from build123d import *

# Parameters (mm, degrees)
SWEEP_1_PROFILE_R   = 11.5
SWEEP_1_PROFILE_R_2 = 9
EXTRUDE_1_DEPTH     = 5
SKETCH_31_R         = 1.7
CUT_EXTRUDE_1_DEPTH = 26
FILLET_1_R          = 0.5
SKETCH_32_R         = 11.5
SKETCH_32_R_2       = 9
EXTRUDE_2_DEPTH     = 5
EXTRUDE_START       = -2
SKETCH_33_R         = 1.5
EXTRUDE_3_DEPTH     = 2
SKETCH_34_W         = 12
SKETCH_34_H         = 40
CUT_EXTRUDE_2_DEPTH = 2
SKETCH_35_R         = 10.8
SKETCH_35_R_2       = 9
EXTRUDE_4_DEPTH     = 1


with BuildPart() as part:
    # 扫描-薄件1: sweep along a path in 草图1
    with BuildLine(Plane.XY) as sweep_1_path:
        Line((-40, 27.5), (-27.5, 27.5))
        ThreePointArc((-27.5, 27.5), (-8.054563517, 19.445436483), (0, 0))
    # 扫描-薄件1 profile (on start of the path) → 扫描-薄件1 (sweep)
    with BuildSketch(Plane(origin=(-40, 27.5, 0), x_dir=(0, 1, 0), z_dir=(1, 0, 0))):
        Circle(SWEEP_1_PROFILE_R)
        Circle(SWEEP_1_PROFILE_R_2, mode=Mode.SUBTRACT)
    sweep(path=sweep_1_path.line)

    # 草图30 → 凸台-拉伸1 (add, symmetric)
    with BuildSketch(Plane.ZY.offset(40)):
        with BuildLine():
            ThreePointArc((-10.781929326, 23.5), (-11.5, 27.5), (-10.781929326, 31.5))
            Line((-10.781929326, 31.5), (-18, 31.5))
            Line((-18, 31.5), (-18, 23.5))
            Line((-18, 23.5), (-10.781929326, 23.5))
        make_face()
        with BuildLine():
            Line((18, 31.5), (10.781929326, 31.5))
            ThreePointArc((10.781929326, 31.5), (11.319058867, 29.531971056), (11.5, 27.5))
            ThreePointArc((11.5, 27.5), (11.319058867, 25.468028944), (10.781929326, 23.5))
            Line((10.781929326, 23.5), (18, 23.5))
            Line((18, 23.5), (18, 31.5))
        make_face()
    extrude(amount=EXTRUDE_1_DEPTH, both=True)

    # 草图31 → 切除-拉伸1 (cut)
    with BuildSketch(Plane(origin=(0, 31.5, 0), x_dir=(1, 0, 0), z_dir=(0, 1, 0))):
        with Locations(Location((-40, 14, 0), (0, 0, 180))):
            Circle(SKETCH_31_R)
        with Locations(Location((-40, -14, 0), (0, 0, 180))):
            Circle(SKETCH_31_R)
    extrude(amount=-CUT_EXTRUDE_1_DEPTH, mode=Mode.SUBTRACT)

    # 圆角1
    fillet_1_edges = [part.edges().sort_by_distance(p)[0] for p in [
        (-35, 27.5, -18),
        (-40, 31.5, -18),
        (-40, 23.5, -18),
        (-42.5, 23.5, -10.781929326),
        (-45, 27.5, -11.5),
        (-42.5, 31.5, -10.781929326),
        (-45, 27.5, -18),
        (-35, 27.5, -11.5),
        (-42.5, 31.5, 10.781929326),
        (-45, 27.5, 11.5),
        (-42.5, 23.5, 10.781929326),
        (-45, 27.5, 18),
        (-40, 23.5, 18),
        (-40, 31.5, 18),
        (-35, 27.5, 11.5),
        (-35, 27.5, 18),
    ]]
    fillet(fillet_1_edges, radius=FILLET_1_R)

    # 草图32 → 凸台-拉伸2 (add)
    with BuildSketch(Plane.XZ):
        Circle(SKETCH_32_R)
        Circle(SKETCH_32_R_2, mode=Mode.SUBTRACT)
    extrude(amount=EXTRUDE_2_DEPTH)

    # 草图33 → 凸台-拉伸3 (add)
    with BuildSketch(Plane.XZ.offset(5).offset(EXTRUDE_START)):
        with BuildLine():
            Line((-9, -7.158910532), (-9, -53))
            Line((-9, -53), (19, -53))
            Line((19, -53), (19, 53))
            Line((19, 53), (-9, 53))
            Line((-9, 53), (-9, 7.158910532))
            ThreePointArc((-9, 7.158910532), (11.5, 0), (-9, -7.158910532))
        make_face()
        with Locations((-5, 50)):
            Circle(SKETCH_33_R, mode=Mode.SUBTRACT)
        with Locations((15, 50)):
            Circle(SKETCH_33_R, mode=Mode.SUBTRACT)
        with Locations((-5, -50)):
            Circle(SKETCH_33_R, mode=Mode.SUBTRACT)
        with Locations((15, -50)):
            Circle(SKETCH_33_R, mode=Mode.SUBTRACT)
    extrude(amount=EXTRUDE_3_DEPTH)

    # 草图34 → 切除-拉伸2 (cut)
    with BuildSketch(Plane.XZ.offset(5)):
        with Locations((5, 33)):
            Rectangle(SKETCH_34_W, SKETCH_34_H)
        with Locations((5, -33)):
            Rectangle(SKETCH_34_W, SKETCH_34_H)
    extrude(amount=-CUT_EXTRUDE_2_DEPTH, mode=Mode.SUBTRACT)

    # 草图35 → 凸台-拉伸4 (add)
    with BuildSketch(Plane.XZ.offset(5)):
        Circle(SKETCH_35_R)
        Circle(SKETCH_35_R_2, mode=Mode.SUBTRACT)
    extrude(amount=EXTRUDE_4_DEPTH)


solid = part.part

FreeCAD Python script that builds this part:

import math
import FreeCAD as App
import Part
import Sketcher
from FreeCAD import Vector


def edges_at(feature, points):
    """Names of the edges that pass closest to the given points."""
    edges = feature.Shape.Edges
    near = lambda p: min(range(len(edges)), key=lambda i: edges[i].distToShape(Part.Vertex(*p))[0])
    return sorted({f"Edge{near(p) + 1}" for p in points})

doc = App.newDocument("Part")
params = doc.addObject("Spreadsheet::Sheet", "Params")
for row, (alias, value) in enumerate([
    ("sketch1_diameter", "23 mm"),
    ("sketch1_diameter2", "18 mm"),
    ("sketch2_radius", "27.5 mm"),
    ("sketch2_width", "12.5 mm"),
    ("sketch3_radius", "11.5 mm"),
    ("sketch3_width", "8 mm"),
    ("pad1_length", "10 mm"),
    ("sketch4_diameter", "3.4 mm"),
    ("pocket1_length", "26 mm"),
    ("fillet_radius", "0.5 mm"),
    ("sketch5_diameter", "23 mm"),
    ("sketch5_diameter2", "18 mm"),
    ("pad2_length", "5 mm"),
    ("sketch6_diameter", "3 mm"),
    ("sketch6_radius", "11.5 mm"),
    ("sketch6_width", "28 mm"),
    ("sketch6_height", "106 mm"),
    ("pad3_length", "2 mm"),
    ("sketch7_width", "12 mm"),
    ("sketch7_height", "40 mm"),
    ("pocket2_length", "2 mm"),
    ("sketch8_diameter", "18 mm"),
    ("sketch8_diameter2", "21.6 mm"),
    ("pad4_length", "1 mm"),
], start=1):
    params.set(f"A{row}", alias)
    params.set(f"B{row}", "=" + value)
    params.setAlias(f"B{row}", alias)

body = doc.addObject("PartDesign::Body", "Body")

sketch1 = body.newObject("Sketcher::SketchObject", "Sketch")
sketch1.AttachmentSupport = (doc.getObject("YZ_Plane"), [""])
sketch1.MapMode = "FlatFace"
sketch1.AttachmentOffset = App.Placement(Vector(0, 0, -40), App.Rotation())
sketch1.addGeometry(Part.Circle(Vector(27.5, 0, 0), Vector(0, 0, 1), 11.5), False)
sketch1.addGeometry(Part.Circle(Vector(27.5, 0, 0), Vector(0, 0, 1), 9), False)
sketch1.addConstraint(Sketcher.Constraint("Coincident", 1, 3, 0, 3))
sketch1.addConstraint(Sketcher.Constraint("PointOnObject", 0, 3, -1))
sketch1.addConstraint(Sketcher.Constraint("Diameter", 0, 23.0))
sketch1.addConstraint(Sketcher.Constraint("Diameter", 1, 18.0))
sketch1.addConstraint(Sketcher.Constraint("DistanceX", -1, 1, 0, 3, 27.5))
sketch1.setExpression("Constraints[2]", "Params.sketch1_diameter")
sketch1.setExpression("Constraints[3]", "Params.sketch1_diameter2")

sketch2 = body.newObject("Sketcher::SketchObject", "Sketch001")
sketch2.AttachmentSupport = (doc.getObject("XY_Plane"), [""])
sketch2.MapMode = "FlatFace"
sketch2.addGeometry(Part.LineSegment(Vector(-40, 27.5, 0), Vector(-27.5, 27.5, 0)), False)
sketch2.addGeometry(Part.ArcOfCircle(Part.Circle(Vector(-27.5, 0, 0), Vector(0, 0, 1), 27.5), math.radians(0), math.radians(90)), False)
sketch2.addConstraint(Sketcher.Constraint("Tangent", 0, 2, 1, 2))
sketch2.addConstraint(Sketcher.Constraint("Horizontal", 0))
sketch2.addConstraint(Sketcher.Constraint("Coincident", 1, 1, -1, 1))
sketch2.addConstraint(Sketcher.Constraint("PointOnObject", 1, 3, -1))
sketch2.addConstraint(Sketcher.Constraint("Radius", 1, 27.5))
sketch2.addConstraint(Sketcher.Constraint("DistanceX", 0, 1, 0, 2, 12.5))
sketch2.setExpression("Constraints[4]", "Params.sketch2_radius")
sketch2.setExpression("Constraints[5]", "Params.sketch2_width")
doc.recompute()

additivepipe = body.newObject("PartDesign::AdditivePipe", "AdditivePipe")
additivepipe.Profile = sketch1
additivepipe.Spine = (sketch2, ["Edge1", "Edge2"])

sketch3 = body.newObject("Sketcher::SketchObject", "Sketch002")
sketch3.AttachmentSupport = (doc.getObject("YZ_Plane"), [""])
sketch3.MapMode = "FlatFace"
sketch3.AttachmentOffset = App.Placement(Vector(0, 0, -40), App.Rotation())
sketch3.addGeometry(Part.ArcOfCircle(Part.Circle(Vector(27.5, 0, 0), Vector(0, 0, 1), 11.5), math.radians(-110.354406), math.radians(-69.645594)), False)
sketch3.addGeometry(Part.LineSegment(Vector(31.5, -10.781929, 0), Vector(31.5, -18, 0)), False)
sketch3.addGeometry(Part.LineSegment(Vector(31.5, -18, 0), Vector(23.5, -18, 0)), False)
sketch3.addGeometry(Part.LineSegment(Vector(23.5, -18, 0), Vector(23.5, -10.781929, 0)), False)
sketch3.addGeometry(Part.LineSegment(Vector(31.5, 18, 0), Vector(31.5, 10.781929, 0)), False)
sketch3.addGeometry(Part.ArcOfCircle(Part.Circle(Vector(27.5, 0, 0), Vector(0, 0, 1), 11.5), math.radians(69.645594), math.radians(90)), False)
sketch3.addGeometry(Part.ArcOfCircle(Part.Circle(Vector(27.5, 0, 0), Vector(0, 0, 1), 11.5), math.radians(90), math.radians(110.354406)), False)
sketch3.addGeometry(Part.LineSegment(Vector(23.5, 10.781929, 0), Vector(23.5, 18, 0)), False)
sketch3.addGeometry(Part.LineSegment(Vector(23.5, 18, 0), Vector(31.5, 18, 0)), False)
sketch3.addConstraint(Sketcher.Constraint("Coincident", 0, 2, 1, 1))
sketch3.addConstraint(Sketcher.Constraint("Coincident", 1, 2, 2, 1))
sketch3.addConstraint(Sketcher.Constraint("Coincident", 2, 2, 3, 1))
sketch3.addConstraint(Sketcher.Constraint("Coincident", 3, 2, 0, 1))
sketch3.addConstraint(Sketcher.Constraint("Coincident", 4, 2, 5, 1))
sketch3.addConstraint(Sketcher.Constraint("Tangent", 5, 2, 6, 1))
sketch3.addConstraint(Sketcher.Constraint("Coincident", 6, 2, 7, 1))
sketch3.addConstraint(Sketcher.Constraint("Coincident", 7, 2, 8, 1))
sketch3.addConstraint(Sketcher.Constraint("Coincident", 8, 2, 4, 1))
sketch3.addConstraint(Sketcher.Constraint("Vertical", 1))
sketch3.addConstraint(Sketcher.Constraint("Horizontal", 2))
sketch3.addConstraint(Sketcher.Constraint("Vertical", 3))
sketch3.addConstraint(Sketcher.Constraint("Vertical", 4))
sketch3.addConstraint(Sketcher.Constraint("Vertical", 7))
sketch3.addConstraint(Sketcher.Constraint("Horizontal", 8))
sketch3.addConstraint(Sketcher.Constraint("Coincident", 5, 3, 0, 3))
sketch3.addConstraint(Sketcher.Constraint("Equal", 0, 5))
sketch3.addConstraint(Sketcher.Constraint("Equal", 5, 6))
sketch3.addConstraint(Sketcher.Constraint("Symmetric", 0, 2, 4, 2, -1))
sketch3.addConstraint(Sketcher.Constraint("Symmetric", 2, 2, 7, 2, -1))
sketch3.addConstraint(Sketcher.Constraint("Horizontal", 0, 2, 3, 2))
sketch3.addConstraint(Sketcher.Constraint("Vertical", 6, 3, 5, 2))
sketch3.addConstraint(Sketcher.Constraint("Radius", 0, 11.5))
sketch3.addConstraint(Sketcher.Constraint("DistanceX", 2, 2, 2, 1, 8.0))
sketch3.addConstraint(Sketcher.Constraint("DistanceY", 1, 2, -1, 1, 18.0))
sketch3.addConstraint(Sketcher.Constraint("DistanceX", -1, 1, 0, 3, 27.5))
sketch3.setExpression("Constraints[22]", "Params.sketch3_radius")
sketch3.setExpression("Constraints[23]", "Params.sketch3_width")
pad1 = body.newObject("PartDesign::Pad", "Pad")
pad1.Profile = sketch3
pad1.setExpression("Length", "Params.pad1_length")
pad1.Midplane = True

sketch4 = body.newObject("Sketcher::SketchObject", "Sketch003")
sketch4.AttachmentSupport = (doc.getObject("XZ_Plane"), [""])
sketch4.MapMode = "FlatFace"
sketch4.AttachmentOffset = App.Placement(Vector(0, 0, -31.5), App.Rotation())
sketch4.addGeometry(Part.Circle(Vector(-40, -14, 0), Vector(0, 0, 1), 1.7), False)
sketch4.addGeometry(Part.Circle(Vector(-40, 14, 0), Vector(0, 0, 1), 1.7), False)
sketch4.addConstraint(Sketcher.Constraint("Equal", 0, 1))
sketch4.addConstraint(Sketcher.Constraint("Symmetric", 0, 3, 1, 3, -1))
sketch4.addConstraint(Sketcher.Constraint("Diameter", 0, 3.4))
sketch4.addConstraint(Sketcher.Constraint("DistanceX", 0, 3, -1, 1, 40.0))
sketch4.addConstraint(Sketcher.Constraint("DistanceY", 0, 3, -1, 1, 14.0))
sketch4.setExpression("Constraints[2]", "Params.sketch4_diameter")
pocket1 = body.newObject("PartDesign::Pocket", "Pocket")
pocket1.Profile = sketch4
pocket1.setExpression("Length", "Params.pocket1_length")
pocket1.Reversed = True
doc.recompute()

fillet = body.newObject("PartDesign::Fillet", "Fillet")
fillet.Base = (pocket1, edges_at(pocket1, [
    (-35, 27.5, -18),
    (-40, 31.5, -18),
    (-40, 23.5, -18),
    (-42.5, 23.5, -10.782),
    (-45, 27.5, -11.5),
    (-42.5, 31.5, -10.782),
    (-45, 27.5, -18),
    (-35, 27.5, -11.5),
    (-42.5, 31.5, 10.782),
    (-45, 29.532, 11.319),
    (-42.5, 23.5, 10.782),
    (-45, 27.5, 18),
    (-40, 23.5, 18),
    (-40, 31.5, 18),
    (-35, 29.532, 11.319),
    (-35, 27.5, 18),
]))
fillet.setExpression("Radius", "Params.fillet_radius")

sketch5 = body.newObject("Sketcher::SketchObject", "Sketch004")
sketch5.AttachmentSupport = (doc.getObject("XZ_Plane"), [""])
sketch5.MapMode = "FlatFace"
sketch5.addGeometry(Part.Circle(Vector(0, 0, 0), Vector(0, 0, 1), 11.5), False)
sketch5.addGeometry(Part.Circle(Vector(0, 0, 0), Vector(0, 0, 1), 9), False)
sketch5.addConstraint(Sketcher.Constraint("Coincident", 0, 3, -1, 1))
sketch5.addConstraint(Sketcher.Constraint("Coincident", 1, 3, -1, 1))
sketch5.addConstraint(Sketcher.Constraint("Diameter", 0, 23.0))
sketch5.addConstraint(Sketcher.Constraint("Diameter", 1, 18.0))
sketch5.setExpression("Constraints[2]", "Params.sketch5_diameter")
sketch5.setExpression("Constraints[3]", "Params.sketch5_diameter2")
pad2 = body.newObject("PartDesign::Pad", "Pad001")
pad2.Profile = sketch5
pad2.setExpression("Length", "Params.pad2_length")

sketch6 = body.newObject("Sketcher::SketchObject", "Sketch005")
sketch6.AttachmentSupport = (doc.getObject("XZ_Plane"), [""])
sketch6.MapMode = "FlatFace"
sketch6.AttachmentOffset = App.Placement(Vector(0, 0, 3), App.Rotation())
sketch6.addGeometry(Part.LineSegment(Vector(-9, -7.158911, 0), Vector(-9, -53, 0)), False)
sketch6.addGeometry(Part.LineSegment(Vector(-9, -53, 0), Vector(19, -53, 0)), False)
sketch6.addGeometry(Part.LineSegment(Vector(19, -53, 0), Vector(19, 53, 0)), False)
sketch6.addGeometry(Part.LineSegment(Vector(19, 53, 0), Vector(-9, 53, 0)), False)
sketch6.addGeometry(Part.LineSegment(Vector(-9, 53, 0), Vector(-9, 7.158911, 0)), False)
sketch6.addGeometry(Part.ArcOfCircle(Part.Circle(Vector(0, 0, 0), Vector(0, 0, 1), 11.5), math.radians(-141.50005), math.radians(141.50005)), False)
sketch6.addGeometry(Part.Circle(Vector(-5, -50, 0), Vector(0, 0, 1), 1.5), False)
sketch6.addGeometry(Part.Circle(Vector(15, -50, 0), Vector(0, 0, 1), 1.5), False)
sketch6.addGeometry(Part.Circle(Vector(-5, 50, 0), Vector(0, 0, 1), 1.5), False)
sketch6.addGeometry(Part.Circle(Vector(15, 50, 0), Vector(0, 0, 1), 1.5), False)
sketch6.addConstraint(Sketcher.Constraint("Coincident", 0, 2, 1, 1))
sketch6.addConstraint(Sketcher.Constraint("Coincident", 1, 2, 2, 1))
sketch6.addConstraint(Sketcher.Constraint("Coincident", 2, 2, 3, 1))
sketch6.addConstraint(Sketcher.Constraint("Coincident", 3, 2, 4, 1))
sketch6.addConstraint(Sketcher.Constraint("Coincident", 4, 2, 5, 2))
sketch6.addConstraint(Sketcher.Constraint("Coincident", 5, 1, 0, 1))
sketch6.addConstraint(Sketcher.Constraint("Vertical", 0))
sketch6.addConstraint(Sketcher.Constraint("Horizontal", 1))
sketch6.addConstraint(Sketcher.Constraint("Vertical", 2))
sketch6.addConstraint(Sketcher.Constraint("Horizontal", 3))
sketch6.addConstraint(Sketcher.Constraint("Vertical", 4))
sketch6.addConstraint(Sketcher.Constraint("Coincident", 5, 3, -1, 1))
sketch6.addConstraint(Sketcher.Constraint("Equal", 6, 7))
sketch6.addConstraint(Sketcher.Constraint("Equal", 7, 8))
sketch6.addConstraint(Sketcher.Constraint("Equal", 8, 9))
sketch6.addConstraint(Sketcher.Constraint("Symmetric", 6, 3, 8, 3, -1))
sketch6.addConstraint(Sketcher.Constraint("Symmetric", 7, 3, 9, 3, -1))
sketch6.addConstraint(Sketcher.Constraint("Symmetric", 0, 2, 3, 2, -1))
sketch6.addConstraint(Sketcher.Constraint("Horizontal", 6, 3, 7, 3))
sketch6.addConstraint(Sketcher.Constraint("Diameter", 6, 3.0))
sketch6.addConstraint(Sketcher.Constraint("Radius", 5, 11.5))
sketch6.addConstraint(Sketcher.Constraint("DistanceX", 1, 1, 1, 2, 28.0))
sketch6.addConstraint(Sketcher.Constraint("DistanceY", 2, 1, 2, 2, 106.0))
sketch6.addConstraint(Sketcher.Constraint("DistanceX", 6, 3, -1, 1, 5.0))
sketch6.addConstraint(Sketcher.Constraint("DistanceY", 6, 3, -1, 1, 50.0))
sketch6.addConstraint(Sketcher.Constraint("DistanceX", -1, 1, 7, 3, 15.0))
sketch6.addConstraint(Sketcher.Constraint("DistanceX", 0, 2, -1, 1, 9.0))
sketch6.setExpression("Constraints[19]", "Params.sketch6_diameter")
sketch6.setExpression("Constraints[20]", "Params.sketch6_radius")
sketch6.setExpression("Constraints[21]", "Params.sketch6_width")
sketch6.setExpression("Constraints[22]", "Params.sketch6_height")
pad3 = body.newObject("PartDesign::Pad", "Pad002")
pad3.Profile = sketch6
pad3.setExpression("Length", "Params.pad3_length")

sketch7 = body.newObject("Sketcher::SketchObject", "Sketch006")
sketch7.AttachmentSupport = (doc.getObject("XZ_Plane"), [""])
sketch7.MapMode = "FlatFace"
sketch7.AttachmentOffset = App.Placement(Vector(0, 0, 5), App.Rotation())
sketch7.addGeometry(Part.LineSegment(Vector(-1, 53, 0), Vector(-1, 13, 0)), False)
sketch7.addGeometry(Part.LineSegment(Vector(-1, 13, 0), Vector(11, 13, 0)), False)
sketch7.addGeometry(Part.LineSegment(Vector(11, 13, 0), Vector(11, 53, 0)), False)
sketch7.addGeometry(Part.LineSegment(Vector(11, 53, 0), Vector(-1, 53, 0)), False)
sketch7.addGeometry(Part.LineSegment(Vector(-1, -13, 0), Vector(-1, -53, 0)), False)
sketch7.addGeometry(Part.LineSegment(Vector(-1, -53, 0), Vector(11, -53, 0)), False)
sketch7.addGeometry(Part.LineSegment(Vector(11, -53, 0), Vector(11, -13, 0)), False)
sketch7.addGeometry(Part.LineSegment(Vector(11, -13, 0), Vector(-1, -13, 0)), False)
sketch7.addConstraint(Sketcher.Constraint("Coincident", 0, 2, 1, 1))
sketch7.addConstraint(Sketcher.Constraint("Coincident", 1, 2, 2, 1))
sketch7.addConstraint(Sketcher.Constraint("Coincident", 2, 2, 3, 1))
sketch7.addConstraint(Sketcher.Constraint("Coincident", 3, 2, 0, 1))
sketch7.addConstraint(Sketcher.Constraint("Coincident", 4, 2, 5, 1))
sketch7.addConstraint(Sketcher.Constraint("Coincident", 5, 2, 6, 1))
sketch7.addConstraint(Sketcher.Constraint("Coincident", 6, 2, 7, 1))
sketch7.addConstraint(Sketcher.Constraint("Coincident", 7, 2, 4, 1))
sketch7.addConstraint(Sketcher.Constraint("Vertical", 0))
sketch7.addConstraint(Sketcher.Constraint("Horizontal", 1))
sketch7.addConstraint(Sketcher.Constraint("Vertical", 2))
sketch7.addConstraint(Sketcher.Constraint("Horizontal", 3))
sketch7.addConstraint(Sketcher.Constraint("Vertical", 4))
sketch7.addConstraint(Sketcher.Constraint("Horizontal", 5))
sketch7.addConstraint(Sketcher.Constraint("Vertical", 6))
sketch7.addConstraint(Sketcher.Constraint("Horizontal", 7))
sketch7.addConstraint(Sketcher.Constraint("Symmetric", 3, 2, 4, 2, -1))
sketch7.addConstraint(Sketcher.Constraint("Symmetric", 1, 2, 6, 2, -1))
sketch7.addConstraint(Sketcher.Constraint("DistanceX", 1, 1, 1, 2, 12.0))
sketch7.addConstraint(Sketcher.Constraint("DistanceY", 0, 2, 0, 1, 40.0))
sketch7.addConstraint(Sketcher.Constraint("DistanceX", 0, 2, -1, 1, 1.0))
sketch7.addConstraint(Sketcher.Constraint("DistanceY", -1, 1, 0, 2, 13.0))
sketch7.setExpression("Constraints[18]", "Params.sketch7_width")
sketch7.setExpression("Constraints[19]", "Params.sketch7_height")
pocket2 = body.newObject("PartDesign::Pocket", "Pocket001")
pocket2.Profile = sketch7
pocket2.setExpression("Length", "Params.pocket2_length")

sketch8 = body.newObject("Sketcher::SketchObject", "Sketch007")
sketch8.AttachmentSupport = (doc.getObject("XZ_Plane"), [""])
sketch8.MapMode = "FlatFace"
sketch8.AttachmentOffset = App.Placement(Vector(0, 0, 5), App.Rotation())
sketch8.addGeometry(Part.Circle(Vector(0, 0, 0), Vector(0, 0, 1), 10.8), False)
sketch8.addGeometry(Part.Circle(Vector(0, 0, 0), Vector(0, 0, 1), 9), False)
sketch8.addConstraint(Sketcher.Constraint("Coincident", 0, 3, -1, 1))
sketch8.addConstraint(Sketcher.Constraint("Coincident", 1, 3, -1, 1))
sketch8.addConstraint(Sketcher.Constraint("Diameter", 1, 18.0))
sketch8.addConstraint(Sketcher.Constraint("Diameter", 0, 21.6))
sketch8.setExpression("Constraints[2]", "Params.sketch8_diameter")
sketch8.setExpression("Constraints[3]", "Params.sketch8_diameter2")
pad4 = body.newObject("PartDesign::Pad", "Pad003")
pad4.Profile = sketch8
pad4.setExpression("Length", "Params.pad4_length")

doc.recompute()
